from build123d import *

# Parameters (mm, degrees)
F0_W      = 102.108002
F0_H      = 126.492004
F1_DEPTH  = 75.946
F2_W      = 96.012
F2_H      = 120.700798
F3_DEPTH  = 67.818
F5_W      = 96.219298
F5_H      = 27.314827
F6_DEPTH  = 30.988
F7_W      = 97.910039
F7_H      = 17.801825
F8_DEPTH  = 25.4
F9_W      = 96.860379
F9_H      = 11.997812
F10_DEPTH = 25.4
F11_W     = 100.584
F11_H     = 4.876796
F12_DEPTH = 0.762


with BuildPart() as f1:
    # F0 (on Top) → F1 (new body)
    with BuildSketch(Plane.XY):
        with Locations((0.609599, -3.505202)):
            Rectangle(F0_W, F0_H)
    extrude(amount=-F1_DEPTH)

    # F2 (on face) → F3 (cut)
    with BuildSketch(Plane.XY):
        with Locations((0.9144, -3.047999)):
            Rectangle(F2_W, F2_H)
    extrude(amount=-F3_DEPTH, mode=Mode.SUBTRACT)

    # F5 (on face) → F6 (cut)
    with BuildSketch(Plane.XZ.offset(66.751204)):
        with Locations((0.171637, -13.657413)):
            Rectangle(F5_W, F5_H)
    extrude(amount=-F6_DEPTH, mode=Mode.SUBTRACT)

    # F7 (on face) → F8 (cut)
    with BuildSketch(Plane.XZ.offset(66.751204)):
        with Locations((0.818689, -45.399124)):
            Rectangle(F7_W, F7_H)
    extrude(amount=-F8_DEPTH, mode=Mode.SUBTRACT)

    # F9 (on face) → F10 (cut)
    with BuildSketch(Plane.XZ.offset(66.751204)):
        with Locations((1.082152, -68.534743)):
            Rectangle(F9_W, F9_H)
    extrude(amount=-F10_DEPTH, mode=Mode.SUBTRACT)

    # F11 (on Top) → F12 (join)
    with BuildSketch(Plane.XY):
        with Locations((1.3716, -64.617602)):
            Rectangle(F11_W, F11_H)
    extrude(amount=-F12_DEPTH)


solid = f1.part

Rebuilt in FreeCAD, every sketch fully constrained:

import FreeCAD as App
import Part
import Sketcher
from FreeCAD import Vector
Q = App.Units.Quantity


def add_polygon(sketch, points):
    """Adds a closed chain of lines whose ends are joined by coincident constraints."""
    first, n = sketch.GeometryCount, len(points)
    for a, b in zip(points, points[1:] + points[:1]):
        sketch.addGeometry(Part.LineSegment(App.Vector(*a, 0), App.Vector(*b, 0)), False)
    for i in range(n):
        sketch.addConstraint(Sketcher.Constraint("Coincident", first + i, 2, first + (i + 1) % n, 1))

doc = App.newDocument("Part")
params = doc.addObject("Spreadsheet::Sheet", "Params")
for row, (alias, value) in enumerate([
    ("sketch1_width", "4.0200001 in"),
    ("sketch1_height", "4.9800002 in"),
    ("pad1_length", "2.99 in"),
    ("sketch2_width", "3.78 in"),
    ("sketch2_height", "4.7519999 in"),
    ("pocket1_length", "2.67 in"),
    ("pocket2_length", "1.22 in"),
    ("pocket3_length", "1 in"),
    ("pocket4_length", "1 in"),
    ("sketch6_width", "3.96 in"),
    ("sketch6_height", "0.1919998 in"),
    ("pad2_length", "0.03 in"),
], start=1):
    params.set(f"A{row}", alias)
    params.set(f"B{row}", "=" + value)
    params.setAlias(f"B{row}", alias)

body = doc.addObject("PartDesign::Body", "Body")

sketch1 = body.newObject("Sketcher::SketchObject", "Sketch")
sketch1.AttachmentSupport = (doc.getObject("XY_Plane"), [""])
sketch1.MapMode = "FlatFace"
add_polygon(sketch1, [(-50.444402, 59.7408), (-50.444402, -66.751204), (51.6636, -66.751204), (51.6636, 59.7408)])
sketch1.addConstraint([
    Sketcher.Constraint("Vertical", 0),
    Sketcher.Constraint("Horizontal", 1),
    Sketcher.Constraint("Vertical", 2),
    Sketcher.Constraint("Horizontal", 3),
    Sketcher.Constraint("DistanceX", 1, 1, 1, 2, Q("4.0200001 in")),
    Sketcher.Constraint("DistanceY", 0, 2, 0, 1, Q("4.9800002 in")),
    Sketcher.Constraint("DistanceX", 0, 2, -1, 1, Q("1.9860001 in")),
    Sketcher.Constraint("DistanceY", 0, 2, -1, 1, Q("2.6280002 in")),
])
sketch1.setExpression("Constraints[8]", "Params.sketch1_width")
sketch1.setExpression("Constraints[9]", "Params.sketch1_height")
pad1 = body.newObject("PartDesign::Pad", "Pad")
pad1.Profile = sketch1
pad1.setExpression("Length", "Params.pad1_length")
pad1.Reversed = True

sketch2 = body.newObject("Sketcher::SketchObject", "Sketch001")
sketch2.AttachmentSupport = (doc.getObject("XY_Plane"), [""])
sketch2.MapMode = "FlatFace"
add_polygon(sketch2, [(-47.0916, 57.3024), (-47.0916, -63.398398), (48.9204, -63.398398), (48.9204, 57.3024)])
sketch2.addConstraint([
    Sketcher.Constraint("Vertical", 0),
    Sketcher.Constraint("Horizontal", 1),
    Sketcher.Constraint("Vertical", 2),
    Sketcher.Constraint("Horizontal", 3),
    Sketcher.Constraint("DistanceX", 1, 1, 1, 2, Q("3.78 in")),
    Sketcher.Constraint("DistanceY", 0, 2, 0, 1, Q("4.7519999 in")),
    Sketcher.Constraint("DistanceX", 0, 2, -1, 1, Q("1.854 in")),
    Sketcher.Constraint("DistanceY", 0, 2, -1, 1, Q("2.4959999 in")),
])
sketch2.setExpression("Constraints[8]", "Params.sketch2_width")
sketch2.setExpression("Constraints[9]", "Params.sketch2_height")
pocket1 = body.newObject("PartDesign::Pocket", "Pocket")
pocket1.Profile = sketch2
pocket1.setExpression("Length", "Params.pocket1_length")

sketch3 = body.newObject("Sketcher::SketchObject", "Sketch002")
sketch3.AttachmentSupport = (doc.getObject("XZ_Plane"), [""])
sketch3.MapMode = "FlatFace"
sketch3.AttachmentOffset = App.Placement(Vector(0, 0, 2.6280002 * 25.4), App.Rotation())
add_polygon(sketch3, [(-47.938012, 0), (-47.938012, -27.314826), (48.281286, -27.314826), (48.281286, 0)])
sketch3.addConstraint([
    Sketcher.Constraint("Vertical", 0),
    Sketcher.Constraint("Horizontal", 1),
    Sketcher.Constraint("Vertical", 2),
    Sketcher.Constraint("Horizontal", 3),
    Sketcher.Constraint("PointOnObject", 2, 2, -1),
    Sketcher.Constraint("DistanceX", 1, 1, 1, 2, 96.219298),
    Sketcher.Constraint("DistanceY", 0, 2, 0, 1, 27.314827),
    Sketcher.Constraint("DistanceX", 0, 2, -1, 1, 47.938012),
])
pocket2 = body.newObject("PartDesign::Pocket", "Pocket001")
pocket2.Profile = sketch3
pocket2.setExpression("Length", "Params.pocket2_length")

sketch4 = body.newObject("Sketcher::SketchObject", "Sketch003")
sketch4.AttachmentSupport = (doc.getObject("XZ_Plane"), [""])
sketch4.MapMode = "FlatFace"
sketch4.AttachmentOffset = App.Placement(Vector(0, 0, 2.6280002 * 25.4), App.Rotation())
add_polygon(sketch4, [(-48.13633, -36.498211), (-48.13633, -54.300036), (49.773708, -54.300036), (49.773708, -36.498211)])
sketch4.addConstraint([
    Sketcher.Constraint("Vertical", 0),
    Sketcher.Constraint("Horizontal", 1),
    Sketcher.Constraint("Vertical", 2),
    Sketcher.Constraint("Horizontal", 3),
    Sketcher.Constraint("DistanceX", 1, 1, 1, 2, 97.910039),
    Sketcher.Constraint("DistanceY", 0, 2, 0, 1, 17.801825),
    Sketcher.Constraint("DistanceX", 0, 2, -1, 1, 48.13633),
    Sketcher.Constraint("DistanceY", 2, 2, -1, 1, 36.498211),
])
pocket3 = body.newObject("PartDesign::Pocket", "Pocket002")
pocket3.Profile = sketch4
pocket3.setExpression("Length", "Params.pocket3_length")

sketch5 = body.newObject("Sketcher::SketchObject", "Sketch004")
sketch5.AttachmentSupport = (doc.getObject("XZ_Plane"), [""])
sketch5.MapMode = "FlatFace"
sketch5.AttachmentOffset = App.Placement(Vector(0, 0, 2.6280002 * 25.4), App.Rotation())
add_polygon(sketch5, [(-47.348037, -62.535837), (-47.348037, -74.533649), (49.512341, -74.533649), (49.512341, -62.535837)])
sketch5.addConstraint([
    Sketcher.Constraint("Vertical", 0),
    Sketcher.Constraint("Horizontal", 1),
    Sketcher.Constraint("Vertical", 2),
    Sketcher.Constraint("Horizontal", 3),
    Sketcher.Constraint("DistanceX", 1, 1, 1, 2, 96.860379),
    Sketcher.Constraint("DistanceY", 0, 2, 0, 1, 11.997812),
    Sketcher.Constraint("DistanceY", 0, 2, -1, 1, 74.533649),
    Sketcher.Constraint("DistanceX", -1, 1, 1, 2, 49.512341),
])
pocket4 = body.newObject("PartDesign::Pocket", "Pocket003")
pocket4.Profile = sketch5
pocket4.setExpression("Length", "Params.pocket4_length")

sketch6 = body.newObject("Sketcher::SketchObject", "Sketch005")
sketch6.AttachmentSupport = (doc.getObject("XY_Plane"), [""])
sketch6.MapMode = "FlatFace"
add_polygon(sketch6, [(-48.9204, -62.179204), (-48.9204, -67.056), (51.6636, -67.056), (51.6636, -62.179204)])
sketch6.addConstraint([
    Sketcher.Constraint("Vertical", 0),
    Sketcher.Constraint("Horizontal", 1),
    Sketcher.Constraint("Vertical", 2),
    Sketcher.Constraint("Horizontal", 3),
    Sketcher.Constraint("DistanceX", 1, 1, 1, 2, Q("3.96 in")),
    Sketcher.Constraint("DistanceY", 0, 2, 0, 1, Q("0.1919998 in")),
    Sketcher.Constraint("DistanceY", 0, 2, -1, 1, Q("2.64 in")),
    Sketcher.Constraint("DistanceX", 0, 2, -1, 1, Q("1.926 in")),
])
sketch6.setExpression("Constraints[8]", "Params.sketch6_width")
sketch6.setExpression("Constraints[9]", "Params.sketch6_height")
pad2 = body.newObject("PartDesign::Pad", "Pad001")
pad2.Profile = sketch6
pad2.setExpression("Length", "Params.pad2_length")
pad2.Reversed = True

doc.recompute()
